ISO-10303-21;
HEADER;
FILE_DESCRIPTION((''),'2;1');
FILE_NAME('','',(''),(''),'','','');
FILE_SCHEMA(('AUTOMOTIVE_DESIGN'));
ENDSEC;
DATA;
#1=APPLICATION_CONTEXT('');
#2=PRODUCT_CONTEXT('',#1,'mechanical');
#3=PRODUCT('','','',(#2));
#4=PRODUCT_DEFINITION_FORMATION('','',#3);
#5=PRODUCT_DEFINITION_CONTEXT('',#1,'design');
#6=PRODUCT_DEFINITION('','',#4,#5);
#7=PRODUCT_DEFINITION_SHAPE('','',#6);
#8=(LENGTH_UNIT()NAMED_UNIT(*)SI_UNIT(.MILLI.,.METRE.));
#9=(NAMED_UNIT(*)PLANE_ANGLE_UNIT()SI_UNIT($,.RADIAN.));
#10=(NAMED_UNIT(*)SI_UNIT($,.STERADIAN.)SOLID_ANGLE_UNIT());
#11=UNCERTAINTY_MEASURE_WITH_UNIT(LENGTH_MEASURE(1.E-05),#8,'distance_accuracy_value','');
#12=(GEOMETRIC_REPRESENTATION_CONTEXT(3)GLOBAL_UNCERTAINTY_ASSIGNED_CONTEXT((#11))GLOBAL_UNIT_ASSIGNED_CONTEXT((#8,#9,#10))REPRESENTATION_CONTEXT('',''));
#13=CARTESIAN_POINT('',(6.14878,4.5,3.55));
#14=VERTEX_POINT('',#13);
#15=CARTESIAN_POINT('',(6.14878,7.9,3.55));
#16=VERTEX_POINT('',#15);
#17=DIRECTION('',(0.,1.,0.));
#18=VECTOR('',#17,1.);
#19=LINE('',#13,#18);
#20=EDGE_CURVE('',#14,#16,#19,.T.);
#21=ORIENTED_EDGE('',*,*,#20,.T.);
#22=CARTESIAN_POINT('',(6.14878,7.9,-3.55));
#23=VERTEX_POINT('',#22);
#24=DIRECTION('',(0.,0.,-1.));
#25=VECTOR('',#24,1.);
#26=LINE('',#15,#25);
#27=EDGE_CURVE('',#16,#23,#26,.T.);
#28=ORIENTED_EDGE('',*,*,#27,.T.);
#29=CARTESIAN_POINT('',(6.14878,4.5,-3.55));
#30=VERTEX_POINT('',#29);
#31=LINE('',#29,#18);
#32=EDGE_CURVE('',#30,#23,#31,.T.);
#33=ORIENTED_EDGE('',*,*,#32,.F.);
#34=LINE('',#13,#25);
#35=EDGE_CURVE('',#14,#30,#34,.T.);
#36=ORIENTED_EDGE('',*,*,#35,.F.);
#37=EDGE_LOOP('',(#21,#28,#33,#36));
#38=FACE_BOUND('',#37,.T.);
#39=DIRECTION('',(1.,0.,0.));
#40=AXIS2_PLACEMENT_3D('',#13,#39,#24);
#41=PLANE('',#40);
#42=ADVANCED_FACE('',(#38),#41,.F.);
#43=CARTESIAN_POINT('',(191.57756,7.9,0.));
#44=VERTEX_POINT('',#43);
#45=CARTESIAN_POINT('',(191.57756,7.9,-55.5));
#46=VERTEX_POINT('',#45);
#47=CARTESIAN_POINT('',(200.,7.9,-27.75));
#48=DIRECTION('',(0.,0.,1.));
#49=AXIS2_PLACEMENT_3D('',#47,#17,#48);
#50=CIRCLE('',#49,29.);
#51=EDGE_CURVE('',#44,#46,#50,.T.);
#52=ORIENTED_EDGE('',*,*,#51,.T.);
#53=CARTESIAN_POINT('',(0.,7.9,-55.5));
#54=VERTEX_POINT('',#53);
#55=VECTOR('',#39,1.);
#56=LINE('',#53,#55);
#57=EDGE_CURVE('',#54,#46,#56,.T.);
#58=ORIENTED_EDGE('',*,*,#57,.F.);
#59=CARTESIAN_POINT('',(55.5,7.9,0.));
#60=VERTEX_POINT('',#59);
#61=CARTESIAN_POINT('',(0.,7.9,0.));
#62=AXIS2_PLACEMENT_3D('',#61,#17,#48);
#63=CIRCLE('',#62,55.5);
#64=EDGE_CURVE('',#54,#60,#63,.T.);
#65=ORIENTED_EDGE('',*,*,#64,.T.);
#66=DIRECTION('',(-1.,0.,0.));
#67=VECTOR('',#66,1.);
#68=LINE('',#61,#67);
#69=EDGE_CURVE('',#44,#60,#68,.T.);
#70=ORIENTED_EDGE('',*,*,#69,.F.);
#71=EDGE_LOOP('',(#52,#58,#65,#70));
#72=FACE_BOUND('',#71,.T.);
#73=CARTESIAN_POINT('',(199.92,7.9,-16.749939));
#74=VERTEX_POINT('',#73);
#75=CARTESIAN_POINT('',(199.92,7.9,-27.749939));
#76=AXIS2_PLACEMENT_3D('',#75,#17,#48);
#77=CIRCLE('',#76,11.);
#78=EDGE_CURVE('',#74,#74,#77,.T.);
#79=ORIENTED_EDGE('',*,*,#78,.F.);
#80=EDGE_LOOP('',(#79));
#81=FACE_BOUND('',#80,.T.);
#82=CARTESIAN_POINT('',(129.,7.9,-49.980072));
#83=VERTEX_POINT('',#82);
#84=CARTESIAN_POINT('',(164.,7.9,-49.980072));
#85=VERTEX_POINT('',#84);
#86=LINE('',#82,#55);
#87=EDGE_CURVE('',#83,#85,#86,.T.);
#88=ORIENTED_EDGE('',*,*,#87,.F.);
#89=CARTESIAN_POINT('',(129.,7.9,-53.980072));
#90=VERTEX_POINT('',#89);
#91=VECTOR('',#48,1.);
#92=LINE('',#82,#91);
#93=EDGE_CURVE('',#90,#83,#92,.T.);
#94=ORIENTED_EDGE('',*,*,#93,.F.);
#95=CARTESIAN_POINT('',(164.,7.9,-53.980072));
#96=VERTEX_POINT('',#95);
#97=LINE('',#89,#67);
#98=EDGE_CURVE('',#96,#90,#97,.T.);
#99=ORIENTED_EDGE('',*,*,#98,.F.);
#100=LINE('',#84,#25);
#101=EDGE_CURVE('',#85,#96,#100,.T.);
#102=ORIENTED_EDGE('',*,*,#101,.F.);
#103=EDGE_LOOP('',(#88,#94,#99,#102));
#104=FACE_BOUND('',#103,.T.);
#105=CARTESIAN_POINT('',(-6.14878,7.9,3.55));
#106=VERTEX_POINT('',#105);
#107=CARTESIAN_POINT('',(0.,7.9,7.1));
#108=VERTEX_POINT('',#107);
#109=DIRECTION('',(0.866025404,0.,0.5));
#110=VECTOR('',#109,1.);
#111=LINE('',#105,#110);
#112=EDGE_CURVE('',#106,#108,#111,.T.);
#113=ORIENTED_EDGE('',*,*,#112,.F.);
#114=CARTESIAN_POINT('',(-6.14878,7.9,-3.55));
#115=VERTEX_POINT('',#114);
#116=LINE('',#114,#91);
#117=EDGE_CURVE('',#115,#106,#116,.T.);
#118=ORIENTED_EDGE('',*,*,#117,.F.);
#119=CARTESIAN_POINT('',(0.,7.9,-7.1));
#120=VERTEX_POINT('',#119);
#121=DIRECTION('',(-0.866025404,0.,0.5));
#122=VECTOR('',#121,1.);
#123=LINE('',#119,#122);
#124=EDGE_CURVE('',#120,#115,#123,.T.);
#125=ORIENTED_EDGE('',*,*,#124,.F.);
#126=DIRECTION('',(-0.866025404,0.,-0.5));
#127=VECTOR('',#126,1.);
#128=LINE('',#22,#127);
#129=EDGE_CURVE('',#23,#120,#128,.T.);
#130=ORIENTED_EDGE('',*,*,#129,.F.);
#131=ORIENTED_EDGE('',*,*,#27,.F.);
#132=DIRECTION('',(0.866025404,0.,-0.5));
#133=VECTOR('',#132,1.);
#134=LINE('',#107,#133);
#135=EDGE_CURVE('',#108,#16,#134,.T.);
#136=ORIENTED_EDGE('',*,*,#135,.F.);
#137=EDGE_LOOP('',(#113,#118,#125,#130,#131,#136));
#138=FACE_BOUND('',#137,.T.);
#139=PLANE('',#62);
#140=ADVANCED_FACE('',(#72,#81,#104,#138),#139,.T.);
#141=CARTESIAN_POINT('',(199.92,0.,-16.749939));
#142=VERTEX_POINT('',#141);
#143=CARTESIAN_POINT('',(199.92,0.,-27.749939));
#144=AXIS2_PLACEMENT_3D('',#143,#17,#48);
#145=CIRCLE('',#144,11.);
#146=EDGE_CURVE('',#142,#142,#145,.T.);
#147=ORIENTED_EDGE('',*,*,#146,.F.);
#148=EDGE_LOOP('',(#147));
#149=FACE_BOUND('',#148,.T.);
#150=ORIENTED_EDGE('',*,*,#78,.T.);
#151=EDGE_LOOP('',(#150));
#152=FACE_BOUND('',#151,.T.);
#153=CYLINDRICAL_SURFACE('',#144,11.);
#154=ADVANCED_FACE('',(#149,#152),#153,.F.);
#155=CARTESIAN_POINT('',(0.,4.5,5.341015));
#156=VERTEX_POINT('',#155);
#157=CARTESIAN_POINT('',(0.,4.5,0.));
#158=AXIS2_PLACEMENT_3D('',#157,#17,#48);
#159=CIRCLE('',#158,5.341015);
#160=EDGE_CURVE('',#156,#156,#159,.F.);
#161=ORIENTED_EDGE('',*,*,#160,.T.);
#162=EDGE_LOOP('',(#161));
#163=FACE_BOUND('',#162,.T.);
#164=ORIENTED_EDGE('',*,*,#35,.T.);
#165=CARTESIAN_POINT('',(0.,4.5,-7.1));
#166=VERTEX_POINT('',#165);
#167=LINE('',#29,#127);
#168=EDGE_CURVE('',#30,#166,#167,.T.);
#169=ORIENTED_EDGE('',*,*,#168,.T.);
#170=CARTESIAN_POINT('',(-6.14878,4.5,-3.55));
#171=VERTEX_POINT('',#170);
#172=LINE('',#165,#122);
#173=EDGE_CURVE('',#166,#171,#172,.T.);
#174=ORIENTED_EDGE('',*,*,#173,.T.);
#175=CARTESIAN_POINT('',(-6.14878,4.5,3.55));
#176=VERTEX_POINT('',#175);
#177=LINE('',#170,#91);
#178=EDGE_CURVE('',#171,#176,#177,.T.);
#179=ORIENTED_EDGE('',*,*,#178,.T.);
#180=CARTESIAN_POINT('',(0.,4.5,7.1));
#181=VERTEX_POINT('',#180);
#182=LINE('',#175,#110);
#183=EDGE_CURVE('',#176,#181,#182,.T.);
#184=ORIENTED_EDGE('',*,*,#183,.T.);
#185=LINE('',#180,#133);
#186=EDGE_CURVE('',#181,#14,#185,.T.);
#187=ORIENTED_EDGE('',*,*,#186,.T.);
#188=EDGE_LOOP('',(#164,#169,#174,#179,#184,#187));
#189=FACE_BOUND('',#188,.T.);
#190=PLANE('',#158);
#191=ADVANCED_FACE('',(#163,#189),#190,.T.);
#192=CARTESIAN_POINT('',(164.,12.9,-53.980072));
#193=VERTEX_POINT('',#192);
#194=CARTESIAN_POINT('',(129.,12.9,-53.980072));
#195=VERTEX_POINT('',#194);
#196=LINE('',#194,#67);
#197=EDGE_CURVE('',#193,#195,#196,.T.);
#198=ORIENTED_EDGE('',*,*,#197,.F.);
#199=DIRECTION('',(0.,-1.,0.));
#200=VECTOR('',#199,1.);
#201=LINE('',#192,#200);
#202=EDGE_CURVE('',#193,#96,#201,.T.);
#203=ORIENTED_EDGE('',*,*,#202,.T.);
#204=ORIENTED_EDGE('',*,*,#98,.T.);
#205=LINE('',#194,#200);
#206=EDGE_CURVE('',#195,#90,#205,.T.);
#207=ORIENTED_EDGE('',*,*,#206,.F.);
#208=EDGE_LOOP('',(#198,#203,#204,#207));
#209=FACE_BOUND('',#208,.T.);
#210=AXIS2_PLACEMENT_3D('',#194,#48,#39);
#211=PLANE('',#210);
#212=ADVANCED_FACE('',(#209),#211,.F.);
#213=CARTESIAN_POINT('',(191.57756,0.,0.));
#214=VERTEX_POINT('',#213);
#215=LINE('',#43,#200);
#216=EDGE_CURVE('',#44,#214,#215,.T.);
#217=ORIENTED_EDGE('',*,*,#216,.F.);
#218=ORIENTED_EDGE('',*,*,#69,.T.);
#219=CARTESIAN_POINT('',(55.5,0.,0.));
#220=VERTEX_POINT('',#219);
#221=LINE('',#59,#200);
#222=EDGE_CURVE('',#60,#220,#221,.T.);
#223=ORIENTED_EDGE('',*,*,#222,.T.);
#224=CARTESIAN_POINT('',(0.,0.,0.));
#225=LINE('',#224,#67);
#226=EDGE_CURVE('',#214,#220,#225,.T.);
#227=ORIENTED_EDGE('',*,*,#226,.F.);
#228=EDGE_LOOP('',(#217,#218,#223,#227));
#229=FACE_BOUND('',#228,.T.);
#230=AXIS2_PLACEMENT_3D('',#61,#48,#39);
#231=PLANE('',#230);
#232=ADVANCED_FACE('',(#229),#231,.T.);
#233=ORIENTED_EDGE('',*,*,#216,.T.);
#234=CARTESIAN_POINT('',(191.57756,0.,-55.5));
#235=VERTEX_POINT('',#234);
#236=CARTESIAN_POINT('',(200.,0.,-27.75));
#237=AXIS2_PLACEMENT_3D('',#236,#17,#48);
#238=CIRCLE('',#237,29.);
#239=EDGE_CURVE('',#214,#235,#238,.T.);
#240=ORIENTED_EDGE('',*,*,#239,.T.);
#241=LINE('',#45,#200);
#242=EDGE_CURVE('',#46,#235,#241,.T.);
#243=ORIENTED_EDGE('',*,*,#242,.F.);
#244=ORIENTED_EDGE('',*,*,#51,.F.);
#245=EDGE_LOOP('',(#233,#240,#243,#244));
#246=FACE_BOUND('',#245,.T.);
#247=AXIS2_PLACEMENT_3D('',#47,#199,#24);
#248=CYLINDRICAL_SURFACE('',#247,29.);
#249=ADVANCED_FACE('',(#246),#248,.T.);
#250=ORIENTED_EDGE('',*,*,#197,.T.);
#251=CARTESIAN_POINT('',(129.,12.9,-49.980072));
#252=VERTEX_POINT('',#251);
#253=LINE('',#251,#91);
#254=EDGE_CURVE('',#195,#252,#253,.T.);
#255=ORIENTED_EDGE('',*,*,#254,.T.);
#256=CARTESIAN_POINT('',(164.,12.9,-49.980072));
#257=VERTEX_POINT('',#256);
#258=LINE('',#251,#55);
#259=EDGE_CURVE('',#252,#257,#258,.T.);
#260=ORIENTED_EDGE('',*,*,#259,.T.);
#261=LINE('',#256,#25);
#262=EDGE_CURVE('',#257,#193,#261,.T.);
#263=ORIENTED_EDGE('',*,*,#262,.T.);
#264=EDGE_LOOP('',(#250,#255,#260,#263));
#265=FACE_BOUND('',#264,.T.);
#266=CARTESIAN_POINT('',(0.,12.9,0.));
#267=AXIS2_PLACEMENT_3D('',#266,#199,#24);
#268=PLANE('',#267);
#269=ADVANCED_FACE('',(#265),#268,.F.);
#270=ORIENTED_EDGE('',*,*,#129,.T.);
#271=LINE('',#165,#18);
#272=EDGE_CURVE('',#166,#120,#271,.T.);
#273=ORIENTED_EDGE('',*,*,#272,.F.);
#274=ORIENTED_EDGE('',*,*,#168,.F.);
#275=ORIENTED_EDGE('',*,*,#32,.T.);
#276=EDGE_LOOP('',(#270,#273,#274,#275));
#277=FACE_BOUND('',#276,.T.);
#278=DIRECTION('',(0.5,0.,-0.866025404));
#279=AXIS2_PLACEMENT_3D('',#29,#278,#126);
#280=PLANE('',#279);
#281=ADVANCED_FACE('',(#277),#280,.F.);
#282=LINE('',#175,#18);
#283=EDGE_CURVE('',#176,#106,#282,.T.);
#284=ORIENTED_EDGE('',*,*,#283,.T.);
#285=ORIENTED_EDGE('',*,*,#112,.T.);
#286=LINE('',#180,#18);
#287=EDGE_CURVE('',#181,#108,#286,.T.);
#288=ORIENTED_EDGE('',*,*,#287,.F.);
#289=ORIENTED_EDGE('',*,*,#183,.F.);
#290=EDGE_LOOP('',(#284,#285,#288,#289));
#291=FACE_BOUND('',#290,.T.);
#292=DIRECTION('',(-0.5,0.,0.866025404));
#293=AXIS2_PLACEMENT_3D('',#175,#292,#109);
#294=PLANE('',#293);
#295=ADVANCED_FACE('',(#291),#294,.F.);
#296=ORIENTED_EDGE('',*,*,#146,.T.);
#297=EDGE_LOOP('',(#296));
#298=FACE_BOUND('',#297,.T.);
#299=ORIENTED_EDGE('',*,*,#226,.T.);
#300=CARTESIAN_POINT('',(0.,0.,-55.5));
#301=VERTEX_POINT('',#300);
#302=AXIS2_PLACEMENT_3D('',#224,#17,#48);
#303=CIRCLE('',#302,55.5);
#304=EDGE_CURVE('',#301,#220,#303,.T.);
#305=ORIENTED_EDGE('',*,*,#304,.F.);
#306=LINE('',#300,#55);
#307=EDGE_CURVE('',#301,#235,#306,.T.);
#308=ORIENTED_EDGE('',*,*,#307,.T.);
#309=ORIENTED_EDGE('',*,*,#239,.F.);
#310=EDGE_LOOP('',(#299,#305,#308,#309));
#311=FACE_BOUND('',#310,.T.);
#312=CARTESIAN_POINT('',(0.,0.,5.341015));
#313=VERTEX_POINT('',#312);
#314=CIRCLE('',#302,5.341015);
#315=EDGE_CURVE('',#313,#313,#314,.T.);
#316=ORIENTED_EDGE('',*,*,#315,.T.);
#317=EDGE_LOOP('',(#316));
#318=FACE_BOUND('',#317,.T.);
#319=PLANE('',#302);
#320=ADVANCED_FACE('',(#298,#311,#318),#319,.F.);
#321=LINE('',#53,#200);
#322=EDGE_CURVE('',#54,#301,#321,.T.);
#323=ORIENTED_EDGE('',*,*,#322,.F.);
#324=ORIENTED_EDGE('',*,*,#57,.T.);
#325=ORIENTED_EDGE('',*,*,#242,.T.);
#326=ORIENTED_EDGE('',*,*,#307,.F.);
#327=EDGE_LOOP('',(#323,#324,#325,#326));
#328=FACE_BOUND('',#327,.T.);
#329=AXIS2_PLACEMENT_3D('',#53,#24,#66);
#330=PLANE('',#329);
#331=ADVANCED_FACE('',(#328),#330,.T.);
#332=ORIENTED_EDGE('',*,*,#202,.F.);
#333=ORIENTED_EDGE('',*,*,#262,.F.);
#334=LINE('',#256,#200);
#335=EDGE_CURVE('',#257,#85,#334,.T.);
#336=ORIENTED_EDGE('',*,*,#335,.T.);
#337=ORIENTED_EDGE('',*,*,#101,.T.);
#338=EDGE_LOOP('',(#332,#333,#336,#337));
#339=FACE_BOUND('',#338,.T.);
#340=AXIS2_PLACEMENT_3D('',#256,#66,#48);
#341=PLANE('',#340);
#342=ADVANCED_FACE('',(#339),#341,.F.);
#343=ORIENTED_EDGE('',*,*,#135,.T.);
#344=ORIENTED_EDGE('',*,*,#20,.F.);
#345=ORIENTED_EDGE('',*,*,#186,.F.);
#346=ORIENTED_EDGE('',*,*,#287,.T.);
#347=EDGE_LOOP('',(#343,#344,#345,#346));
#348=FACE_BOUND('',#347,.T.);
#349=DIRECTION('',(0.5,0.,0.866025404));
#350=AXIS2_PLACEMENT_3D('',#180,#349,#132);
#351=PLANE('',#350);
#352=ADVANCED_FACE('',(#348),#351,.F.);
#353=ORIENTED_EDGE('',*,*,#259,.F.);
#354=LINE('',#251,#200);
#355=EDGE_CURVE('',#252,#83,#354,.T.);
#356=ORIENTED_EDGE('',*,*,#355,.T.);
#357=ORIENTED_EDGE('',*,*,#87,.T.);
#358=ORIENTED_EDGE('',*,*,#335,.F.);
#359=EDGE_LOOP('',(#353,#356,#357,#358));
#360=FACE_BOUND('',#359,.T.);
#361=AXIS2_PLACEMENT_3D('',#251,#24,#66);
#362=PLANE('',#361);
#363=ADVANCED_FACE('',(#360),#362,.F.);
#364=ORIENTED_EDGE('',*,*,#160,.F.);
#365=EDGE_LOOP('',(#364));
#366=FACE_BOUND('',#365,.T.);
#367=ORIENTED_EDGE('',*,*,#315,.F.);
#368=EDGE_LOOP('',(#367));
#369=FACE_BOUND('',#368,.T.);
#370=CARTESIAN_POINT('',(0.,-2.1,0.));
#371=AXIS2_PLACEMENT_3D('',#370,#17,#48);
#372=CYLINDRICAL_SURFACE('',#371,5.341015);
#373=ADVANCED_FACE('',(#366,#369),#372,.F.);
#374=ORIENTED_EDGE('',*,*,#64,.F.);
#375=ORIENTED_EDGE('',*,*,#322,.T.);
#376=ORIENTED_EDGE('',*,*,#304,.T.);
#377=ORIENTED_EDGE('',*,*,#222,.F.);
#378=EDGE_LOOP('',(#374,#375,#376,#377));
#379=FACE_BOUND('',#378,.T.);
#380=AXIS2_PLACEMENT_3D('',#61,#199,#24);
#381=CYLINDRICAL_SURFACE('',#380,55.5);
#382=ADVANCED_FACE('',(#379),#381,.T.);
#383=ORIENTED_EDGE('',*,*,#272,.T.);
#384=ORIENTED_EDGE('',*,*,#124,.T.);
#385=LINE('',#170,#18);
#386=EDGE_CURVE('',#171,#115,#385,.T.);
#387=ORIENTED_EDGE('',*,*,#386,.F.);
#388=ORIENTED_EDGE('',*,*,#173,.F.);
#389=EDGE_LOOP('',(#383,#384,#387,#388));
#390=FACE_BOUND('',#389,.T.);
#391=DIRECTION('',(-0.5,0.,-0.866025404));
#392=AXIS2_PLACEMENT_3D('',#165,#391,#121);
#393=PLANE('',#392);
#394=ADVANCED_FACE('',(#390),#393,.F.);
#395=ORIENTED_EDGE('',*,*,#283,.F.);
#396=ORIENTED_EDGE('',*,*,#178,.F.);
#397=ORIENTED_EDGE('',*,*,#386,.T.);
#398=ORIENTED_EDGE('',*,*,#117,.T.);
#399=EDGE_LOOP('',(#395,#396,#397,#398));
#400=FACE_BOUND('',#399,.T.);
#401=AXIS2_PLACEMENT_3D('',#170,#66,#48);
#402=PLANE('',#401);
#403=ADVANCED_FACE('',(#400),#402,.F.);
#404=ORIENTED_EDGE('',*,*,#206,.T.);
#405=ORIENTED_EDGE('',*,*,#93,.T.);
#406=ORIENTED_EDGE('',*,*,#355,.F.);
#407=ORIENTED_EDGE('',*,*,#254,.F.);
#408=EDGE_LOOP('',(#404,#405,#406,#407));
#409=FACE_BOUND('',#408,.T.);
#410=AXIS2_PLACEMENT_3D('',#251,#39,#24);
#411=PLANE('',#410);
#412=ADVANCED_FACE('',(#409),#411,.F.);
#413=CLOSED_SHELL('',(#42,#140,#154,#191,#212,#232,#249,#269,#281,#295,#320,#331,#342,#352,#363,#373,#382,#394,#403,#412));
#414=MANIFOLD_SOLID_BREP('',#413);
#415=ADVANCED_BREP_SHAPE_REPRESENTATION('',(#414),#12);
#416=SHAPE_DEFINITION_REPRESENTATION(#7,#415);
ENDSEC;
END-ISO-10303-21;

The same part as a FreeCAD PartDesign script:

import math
import FreeCAD as App
import Part
import Sketcher

V = App.Vector
Q = App.Units.Quantity


def add_polygon(sketch, points):
    """Adds a closed chain of lines whose ends are joined by coincident constraints."""
    first, n = sketch.GeometryCount, len(points)
    for a, b in zip(points, points[1:] + points[:1]):
        sketch.addGeometry(Part.LineSegment(App.Vector(*a, 0), App.Vector(*b, 0)), False)
    for i in range(n):
        sketch.addConstraint(Sketcher.Constraint("Coincident", first + i, 2, first + (i + 1) % n, 1))

doc = App.newDocument("Part")
body = doc.addObject("PartDesign::Body", "Body")

sketch1 = doc.addObject("Sketcher::SketchObject", "Sketch")
body.addObject(sketch1)
sketch1.AttachmentSupport = (doc.XZ_Plane, [""])
sketch1.MapMode = "FlatFace"
sketch1.addGeometry([
    Part.LineSegment(V(191.57756, -55.5, 0), V(0, -55.5, 0)),
    Part.ArcOfCircle(Part.Circle(V(0, 0, 0), V(0, 0, 1), 55.5), math.radians(0), math.radians(270)),
    Part.LineSegment(V(55.5, 0, 0), V(191.57756, 0, 0)),
    Part.ArcOfCircle(Part.Circle(V(200, -27.75, 0), V(0, 0, 1), 29), math.radians(-106.88364), math.radians(106.88364)),
], False)
sketch1.addConstraint([
    Sketcher.Constraint("Tangent", 0, 2, 1, 2),
    Sketcher.Constraint("Coincident", 1, 1, 2, 1),
    Sketcher.Constraint("Coincident", 2, 2, 3, 2),
    Sketcher.Constraint("Coincident", 3, 1, 0, 1),
    Sketcher.Constraint("Horizontal", 0),
    Sketcher.Constraint("Horizontal", 2),
    Sketcher.Constraint("Coincident", 1, 3, -1, 1),
    Sketcher.Constraint("PointOnObject", 1, 1, -1),
    Sketcher.Constraint("Vertical", 2, 2, 3, 1),
    Sketcher.Constraint("Radius", 3, 29.0),
    Sketcher.Constraint("Radius", 1, 55.5),
    Sketcher.Constraint("DistanceX", -1, 1, 3, 3, 200.0),
])
pad1 = doc.addObject("PartDesign::Pad", "Pad")
body.addObject(pad1)
pad1.Profile = sketch1
pad1.Length = 7.9
pad1.Reversed = True

sketch2 = doc.addObject("Sketcher::SketchObject", "Sketch001")
body.addObject(sketch2)
sketch2.AttachmentSupport = (doc.XZ_Plane, [""])
sketch2.MapMode = "FlatFace"
sketch2.AttachmentOffset = App.Placement(V(0, 0, -7.9), App.Rotation())
add_polygon(sketch2, [(129, -53.980072), (129, -49.980072), (164, -49.980072), (164, -53.980072)])
sketch2.addConstraint([
    Sketcher.Constraint("Vertical", 0),
    Sketcher.Constraint("Horizontal", 1),
    Sketcher.Constraint("Vertical", 2),
    Sketcher.Constraint("Horizontal", 3),
    Sketcher.Constraint("DistanceX", 1, 1, 1, 2, 35.0),
    Sketcher.Constraint("DistanceY", 0, 1, 0, 2, 4.0),
    Sketcher.Constraint("DistanceX", -1, 1, 0, 2, 129.0),
    Sketcher.Constraint("DistanceY", 0, 2, -1, 1, 49.980072),
])
pad2 = doc.addObject("PartDesign::Pad", "Pad001")
body.addObject(pad2)
pad2.Profile = sketch2
pad2.Length = 5
pad2.Reversed = True

sketch3 = doc.addObject("Sketcher::SketchObject", "Sketch002")
body.addObject(sketch3)
sketch3.AttachmentSupport = (doc.XZ_Plane, [""])
sketch3.MapMode = "FlatFace"
sketch3.AttachmentOffset = App.Placement(V(0, 0, -7.9), App.Rotation())
sketch3.addGeometry(Part.Circle(V(199.92, -27.749939, 0), V(0, 0, 1), 11), False)
sketch3.addConstraint([
    Sketcher.Constraint("Diameter", 0, 22.0),
    Sketcher.Constraint("DistanceX", -1, 1, 0, 3, 199.92),
    Sketcher.Constraint("DistanceY", 0, 3, -1, 1, 27.749939),
])
pocket1 = doc.addObject("PartDesign::Pocket", "Pocket")
body.addObject(pocket1)
pocket1.Profile = sketch3
pocket1.Type = "ThroughAll"
pocket1.Reversed = True

sketch4 = doc.addObject("Sketcher::SketchObject", "Sketch003")
body.addObject(sketch4)
sketch4.AttachmentSupport = (doc.XZ_Plane, [""])
sketch4.MapMode = "FlatFace"
sketch4.AttachmentOffset = App.Placement(V(0, 0, -7.9), App.Rotation())
sketch4.addGeometry(Part.Circle(V(0, 0, 0), V(0, 0, 1), 5.341015), False)
sketch4.addConstraint([
    Sketcher.Constraint("Coincident", 0, 3, -1, 1),
    Sketcher.Constraint("Diameter", 0, 10.682031),
])
pocket2 = doc.addObject("PartDesign::Pocket", "Pocket001")
body.addObject(pocket2)
pocket2.Profile = sketch4
pocket2.Length = 10
pocket2.Reversed = True

sketch5 = doc.addObject("Sketcher::SketchObject", "Sketch004")
body.addObject(sketch5)
sketch5.AttachmentSupport = (doc.XZ_Plane, [""])
sketch5.MapMode = "FlatFace"
sketch5.AttachmentOffset = App.Placement(V(0, 0, -7.9), App.Rotation())
add_polygon(sketch5, [(0, -7.1), (-6.14878, -3.55), (-6.14878, 3.55), (0, 7.1), (6.14878, 3.55), (6.14878, -3.55)])
sketch5.addConstraint([
    Sketcher.Constraint("Vertical", 1),
    Sketcher.Constraint("Vertical", 4),
    Sketcher.Constraint("Symmetric", 0, 2, 3, 2, -1, 1),
    Sketcher.Constraint("Symmetric", 2, 2, 5, 2, -1, 1),
    Sketcher.Constraint("PointOnObject", 2, 2, -2),
    Sketcher.Constraint("Parallel", 2, 5),
    Sketcher.Constraint("Horizontal", 1, 2, 3, 2),
    Sketcher.Constraint("Angle", 0, Q("150 deg")),
    Sketcher.Constraint("DistanceY", 1, 1, 1, 2, 7.1),
    Sketcher.Constraint("Distance", 0, 7.1),
])
pocket3 = doc.addObject("PartDesign::Pocket", "Pocket002")
body.addObject(pocket3)
pocket3.Profile = sketch5
pocket3.Length = 3.4
pocket3.Reversed = True

doc.recompute()
